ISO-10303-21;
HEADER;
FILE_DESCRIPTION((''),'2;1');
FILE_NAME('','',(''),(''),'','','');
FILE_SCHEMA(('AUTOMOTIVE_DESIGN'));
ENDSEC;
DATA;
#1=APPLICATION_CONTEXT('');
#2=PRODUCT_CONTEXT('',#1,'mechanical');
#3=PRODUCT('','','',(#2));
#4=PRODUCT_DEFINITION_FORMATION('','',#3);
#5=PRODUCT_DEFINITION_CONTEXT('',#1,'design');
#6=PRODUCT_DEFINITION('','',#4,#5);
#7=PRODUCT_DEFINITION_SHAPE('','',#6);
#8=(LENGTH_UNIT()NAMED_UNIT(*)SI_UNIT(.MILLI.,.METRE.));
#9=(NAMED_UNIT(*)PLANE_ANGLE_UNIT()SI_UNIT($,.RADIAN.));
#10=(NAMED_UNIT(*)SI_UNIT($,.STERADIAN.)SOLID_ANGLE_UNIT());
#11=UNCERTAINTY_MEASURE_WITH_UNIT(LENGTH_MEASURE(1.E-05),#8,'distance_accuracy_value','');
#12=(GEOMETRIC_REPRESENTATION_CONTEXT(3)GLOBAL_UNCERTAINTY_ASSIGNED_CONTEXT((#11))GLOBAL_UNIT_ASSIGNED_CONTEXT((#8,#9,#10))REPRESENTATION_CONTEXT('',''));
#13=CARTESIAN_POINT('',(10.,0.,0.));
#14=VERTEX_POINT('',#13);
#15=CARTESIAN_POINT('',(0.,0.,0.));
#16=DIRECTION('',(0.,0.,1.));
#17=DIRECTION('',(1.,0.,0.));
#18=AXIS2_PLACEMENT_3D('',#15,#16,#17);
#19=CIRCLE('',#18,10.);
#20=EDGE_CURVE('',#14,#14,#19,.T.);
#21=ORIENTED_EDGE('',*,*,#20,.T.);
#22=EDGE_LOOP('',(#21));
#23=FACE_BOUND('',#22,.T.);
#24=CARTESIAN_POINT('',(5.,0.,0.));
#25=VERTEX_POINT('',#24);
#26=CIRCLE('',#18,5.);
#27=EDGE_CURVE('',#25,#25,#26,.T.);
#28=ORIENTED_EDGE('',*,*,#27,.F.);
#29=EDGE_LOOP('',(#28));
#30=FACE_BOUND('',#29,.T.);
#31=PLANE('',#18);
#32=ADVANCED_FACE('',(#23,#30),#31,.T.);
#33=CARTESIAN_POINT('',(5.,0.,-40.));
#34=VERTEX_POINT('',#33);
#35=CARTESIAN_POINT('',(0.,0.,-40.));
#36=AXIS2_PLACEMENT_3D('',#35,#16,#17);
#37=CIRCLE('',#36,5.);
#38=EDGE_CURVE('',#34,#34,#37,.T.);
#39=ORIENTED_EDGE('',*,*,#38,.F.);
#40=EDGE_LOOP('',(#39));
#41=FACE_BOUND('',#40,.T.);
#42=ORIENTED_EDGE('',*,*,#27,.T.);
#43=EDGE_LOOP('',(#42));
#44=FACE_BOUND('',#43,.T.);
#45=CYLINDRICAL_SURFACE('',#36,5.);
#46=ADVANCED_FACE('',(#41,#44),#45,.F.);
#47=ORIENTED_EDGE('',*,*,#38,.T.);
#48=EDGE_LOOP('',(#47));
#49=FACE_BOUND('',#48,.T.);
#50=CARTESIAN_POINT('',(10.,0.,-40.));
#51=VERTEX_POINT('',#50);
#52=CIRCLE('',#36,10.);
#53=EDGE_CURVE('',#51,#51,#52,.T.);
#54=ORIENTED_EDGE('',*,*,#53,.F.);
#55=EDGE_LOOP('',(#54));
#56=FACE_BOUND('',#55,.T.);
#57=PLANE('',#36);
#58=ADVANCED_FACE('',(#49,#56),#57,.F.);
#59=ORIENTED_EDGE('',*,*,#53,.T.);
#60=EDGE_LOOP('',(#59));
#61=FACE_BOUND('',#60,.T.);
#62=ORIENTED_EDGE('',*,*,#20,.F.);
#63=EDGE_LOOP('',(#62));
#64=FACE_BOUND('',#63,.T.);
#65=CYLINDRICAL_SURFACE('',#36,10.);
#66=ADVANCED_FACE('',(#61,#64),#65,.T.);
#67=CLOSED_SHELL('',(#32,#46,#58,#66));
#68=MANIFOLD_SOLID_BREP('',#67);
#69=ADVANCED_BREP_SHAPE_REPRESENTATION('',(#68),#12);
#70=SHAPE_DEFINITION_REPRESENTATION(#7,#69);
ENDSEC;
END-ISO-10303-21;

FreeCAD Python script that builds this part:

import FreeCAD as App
import Part
import Sketcher
from FreeCAD import Vector

doc = App.newDocument("Part")
params = doc.addObject("Spreadsheet::Sheet", "Params")
for row, (alias, value) in enumerate([
    ("sketch1_diameter", "20 mm"),
    ("pad1_length", "40 mm"),
    ("sketch2_diameter", "10 mm"),
], start=1):
    params.set(f"A{row}", alias)
    params.set(f"B{row}", "=" + value)
    params.setAlias(f"B{row}", alias)

body = doc.addObject("PartDesign::Body", "Body")

sketch1 = body.newObject("Sketcher::SketchObject", "Sketch")
sketch1.AttachmentSupport = (doc.getObject("XY_Plane"), [""])
sketch1.MapMode = "FlatFace"
sketch1.addGeometry(Part.Circle(Vector(0, 0, 0), Vector(0, 0, 1), 10), False)
sketch1.addConstraint([
    Sketcher.Constraint("Coincident", 0, 3, -1, 1),
    Sketcher.Constraint("Diameter", 0, 20.0),
])
sketch1.setExpression("Constraints[1]", "Params.sketch1_diameter")
pad1 = body.newObject("PartDesign::Pad", "Pad")
pad1.Profile = sketch1
pad1.setExpression("Length", "Params.pad1_length")
pad1.Reversed = True

sketch2 = body.newObject("Sketcher::SketchObject", "Sketch001")
sketch2.AttachmentSupport = (doc.getObject("XY_Plane"), [""])
sketch2.MapMode = "FlatFace"
sketch2.addGeometry(Part.Circle(Vector(0, 0, 0), Vector(0, 0, 1), 5), False)
sketch2.addConstraint([
    Sketcher.Constraint("Coincident", 0, 3, -1, 1),
    Sketcher.Constraint("Diameter", 0, 10.0),
])
sketch2.setExpression("Constraints[1]", "Params.sketch2_diameter")
pocket1 = body.newObject("PartDesign::Pocket", "Pocket")
pocket1.Profile = sketch2
pocket1.Type = "ThroughAll"

doc.recompute()
